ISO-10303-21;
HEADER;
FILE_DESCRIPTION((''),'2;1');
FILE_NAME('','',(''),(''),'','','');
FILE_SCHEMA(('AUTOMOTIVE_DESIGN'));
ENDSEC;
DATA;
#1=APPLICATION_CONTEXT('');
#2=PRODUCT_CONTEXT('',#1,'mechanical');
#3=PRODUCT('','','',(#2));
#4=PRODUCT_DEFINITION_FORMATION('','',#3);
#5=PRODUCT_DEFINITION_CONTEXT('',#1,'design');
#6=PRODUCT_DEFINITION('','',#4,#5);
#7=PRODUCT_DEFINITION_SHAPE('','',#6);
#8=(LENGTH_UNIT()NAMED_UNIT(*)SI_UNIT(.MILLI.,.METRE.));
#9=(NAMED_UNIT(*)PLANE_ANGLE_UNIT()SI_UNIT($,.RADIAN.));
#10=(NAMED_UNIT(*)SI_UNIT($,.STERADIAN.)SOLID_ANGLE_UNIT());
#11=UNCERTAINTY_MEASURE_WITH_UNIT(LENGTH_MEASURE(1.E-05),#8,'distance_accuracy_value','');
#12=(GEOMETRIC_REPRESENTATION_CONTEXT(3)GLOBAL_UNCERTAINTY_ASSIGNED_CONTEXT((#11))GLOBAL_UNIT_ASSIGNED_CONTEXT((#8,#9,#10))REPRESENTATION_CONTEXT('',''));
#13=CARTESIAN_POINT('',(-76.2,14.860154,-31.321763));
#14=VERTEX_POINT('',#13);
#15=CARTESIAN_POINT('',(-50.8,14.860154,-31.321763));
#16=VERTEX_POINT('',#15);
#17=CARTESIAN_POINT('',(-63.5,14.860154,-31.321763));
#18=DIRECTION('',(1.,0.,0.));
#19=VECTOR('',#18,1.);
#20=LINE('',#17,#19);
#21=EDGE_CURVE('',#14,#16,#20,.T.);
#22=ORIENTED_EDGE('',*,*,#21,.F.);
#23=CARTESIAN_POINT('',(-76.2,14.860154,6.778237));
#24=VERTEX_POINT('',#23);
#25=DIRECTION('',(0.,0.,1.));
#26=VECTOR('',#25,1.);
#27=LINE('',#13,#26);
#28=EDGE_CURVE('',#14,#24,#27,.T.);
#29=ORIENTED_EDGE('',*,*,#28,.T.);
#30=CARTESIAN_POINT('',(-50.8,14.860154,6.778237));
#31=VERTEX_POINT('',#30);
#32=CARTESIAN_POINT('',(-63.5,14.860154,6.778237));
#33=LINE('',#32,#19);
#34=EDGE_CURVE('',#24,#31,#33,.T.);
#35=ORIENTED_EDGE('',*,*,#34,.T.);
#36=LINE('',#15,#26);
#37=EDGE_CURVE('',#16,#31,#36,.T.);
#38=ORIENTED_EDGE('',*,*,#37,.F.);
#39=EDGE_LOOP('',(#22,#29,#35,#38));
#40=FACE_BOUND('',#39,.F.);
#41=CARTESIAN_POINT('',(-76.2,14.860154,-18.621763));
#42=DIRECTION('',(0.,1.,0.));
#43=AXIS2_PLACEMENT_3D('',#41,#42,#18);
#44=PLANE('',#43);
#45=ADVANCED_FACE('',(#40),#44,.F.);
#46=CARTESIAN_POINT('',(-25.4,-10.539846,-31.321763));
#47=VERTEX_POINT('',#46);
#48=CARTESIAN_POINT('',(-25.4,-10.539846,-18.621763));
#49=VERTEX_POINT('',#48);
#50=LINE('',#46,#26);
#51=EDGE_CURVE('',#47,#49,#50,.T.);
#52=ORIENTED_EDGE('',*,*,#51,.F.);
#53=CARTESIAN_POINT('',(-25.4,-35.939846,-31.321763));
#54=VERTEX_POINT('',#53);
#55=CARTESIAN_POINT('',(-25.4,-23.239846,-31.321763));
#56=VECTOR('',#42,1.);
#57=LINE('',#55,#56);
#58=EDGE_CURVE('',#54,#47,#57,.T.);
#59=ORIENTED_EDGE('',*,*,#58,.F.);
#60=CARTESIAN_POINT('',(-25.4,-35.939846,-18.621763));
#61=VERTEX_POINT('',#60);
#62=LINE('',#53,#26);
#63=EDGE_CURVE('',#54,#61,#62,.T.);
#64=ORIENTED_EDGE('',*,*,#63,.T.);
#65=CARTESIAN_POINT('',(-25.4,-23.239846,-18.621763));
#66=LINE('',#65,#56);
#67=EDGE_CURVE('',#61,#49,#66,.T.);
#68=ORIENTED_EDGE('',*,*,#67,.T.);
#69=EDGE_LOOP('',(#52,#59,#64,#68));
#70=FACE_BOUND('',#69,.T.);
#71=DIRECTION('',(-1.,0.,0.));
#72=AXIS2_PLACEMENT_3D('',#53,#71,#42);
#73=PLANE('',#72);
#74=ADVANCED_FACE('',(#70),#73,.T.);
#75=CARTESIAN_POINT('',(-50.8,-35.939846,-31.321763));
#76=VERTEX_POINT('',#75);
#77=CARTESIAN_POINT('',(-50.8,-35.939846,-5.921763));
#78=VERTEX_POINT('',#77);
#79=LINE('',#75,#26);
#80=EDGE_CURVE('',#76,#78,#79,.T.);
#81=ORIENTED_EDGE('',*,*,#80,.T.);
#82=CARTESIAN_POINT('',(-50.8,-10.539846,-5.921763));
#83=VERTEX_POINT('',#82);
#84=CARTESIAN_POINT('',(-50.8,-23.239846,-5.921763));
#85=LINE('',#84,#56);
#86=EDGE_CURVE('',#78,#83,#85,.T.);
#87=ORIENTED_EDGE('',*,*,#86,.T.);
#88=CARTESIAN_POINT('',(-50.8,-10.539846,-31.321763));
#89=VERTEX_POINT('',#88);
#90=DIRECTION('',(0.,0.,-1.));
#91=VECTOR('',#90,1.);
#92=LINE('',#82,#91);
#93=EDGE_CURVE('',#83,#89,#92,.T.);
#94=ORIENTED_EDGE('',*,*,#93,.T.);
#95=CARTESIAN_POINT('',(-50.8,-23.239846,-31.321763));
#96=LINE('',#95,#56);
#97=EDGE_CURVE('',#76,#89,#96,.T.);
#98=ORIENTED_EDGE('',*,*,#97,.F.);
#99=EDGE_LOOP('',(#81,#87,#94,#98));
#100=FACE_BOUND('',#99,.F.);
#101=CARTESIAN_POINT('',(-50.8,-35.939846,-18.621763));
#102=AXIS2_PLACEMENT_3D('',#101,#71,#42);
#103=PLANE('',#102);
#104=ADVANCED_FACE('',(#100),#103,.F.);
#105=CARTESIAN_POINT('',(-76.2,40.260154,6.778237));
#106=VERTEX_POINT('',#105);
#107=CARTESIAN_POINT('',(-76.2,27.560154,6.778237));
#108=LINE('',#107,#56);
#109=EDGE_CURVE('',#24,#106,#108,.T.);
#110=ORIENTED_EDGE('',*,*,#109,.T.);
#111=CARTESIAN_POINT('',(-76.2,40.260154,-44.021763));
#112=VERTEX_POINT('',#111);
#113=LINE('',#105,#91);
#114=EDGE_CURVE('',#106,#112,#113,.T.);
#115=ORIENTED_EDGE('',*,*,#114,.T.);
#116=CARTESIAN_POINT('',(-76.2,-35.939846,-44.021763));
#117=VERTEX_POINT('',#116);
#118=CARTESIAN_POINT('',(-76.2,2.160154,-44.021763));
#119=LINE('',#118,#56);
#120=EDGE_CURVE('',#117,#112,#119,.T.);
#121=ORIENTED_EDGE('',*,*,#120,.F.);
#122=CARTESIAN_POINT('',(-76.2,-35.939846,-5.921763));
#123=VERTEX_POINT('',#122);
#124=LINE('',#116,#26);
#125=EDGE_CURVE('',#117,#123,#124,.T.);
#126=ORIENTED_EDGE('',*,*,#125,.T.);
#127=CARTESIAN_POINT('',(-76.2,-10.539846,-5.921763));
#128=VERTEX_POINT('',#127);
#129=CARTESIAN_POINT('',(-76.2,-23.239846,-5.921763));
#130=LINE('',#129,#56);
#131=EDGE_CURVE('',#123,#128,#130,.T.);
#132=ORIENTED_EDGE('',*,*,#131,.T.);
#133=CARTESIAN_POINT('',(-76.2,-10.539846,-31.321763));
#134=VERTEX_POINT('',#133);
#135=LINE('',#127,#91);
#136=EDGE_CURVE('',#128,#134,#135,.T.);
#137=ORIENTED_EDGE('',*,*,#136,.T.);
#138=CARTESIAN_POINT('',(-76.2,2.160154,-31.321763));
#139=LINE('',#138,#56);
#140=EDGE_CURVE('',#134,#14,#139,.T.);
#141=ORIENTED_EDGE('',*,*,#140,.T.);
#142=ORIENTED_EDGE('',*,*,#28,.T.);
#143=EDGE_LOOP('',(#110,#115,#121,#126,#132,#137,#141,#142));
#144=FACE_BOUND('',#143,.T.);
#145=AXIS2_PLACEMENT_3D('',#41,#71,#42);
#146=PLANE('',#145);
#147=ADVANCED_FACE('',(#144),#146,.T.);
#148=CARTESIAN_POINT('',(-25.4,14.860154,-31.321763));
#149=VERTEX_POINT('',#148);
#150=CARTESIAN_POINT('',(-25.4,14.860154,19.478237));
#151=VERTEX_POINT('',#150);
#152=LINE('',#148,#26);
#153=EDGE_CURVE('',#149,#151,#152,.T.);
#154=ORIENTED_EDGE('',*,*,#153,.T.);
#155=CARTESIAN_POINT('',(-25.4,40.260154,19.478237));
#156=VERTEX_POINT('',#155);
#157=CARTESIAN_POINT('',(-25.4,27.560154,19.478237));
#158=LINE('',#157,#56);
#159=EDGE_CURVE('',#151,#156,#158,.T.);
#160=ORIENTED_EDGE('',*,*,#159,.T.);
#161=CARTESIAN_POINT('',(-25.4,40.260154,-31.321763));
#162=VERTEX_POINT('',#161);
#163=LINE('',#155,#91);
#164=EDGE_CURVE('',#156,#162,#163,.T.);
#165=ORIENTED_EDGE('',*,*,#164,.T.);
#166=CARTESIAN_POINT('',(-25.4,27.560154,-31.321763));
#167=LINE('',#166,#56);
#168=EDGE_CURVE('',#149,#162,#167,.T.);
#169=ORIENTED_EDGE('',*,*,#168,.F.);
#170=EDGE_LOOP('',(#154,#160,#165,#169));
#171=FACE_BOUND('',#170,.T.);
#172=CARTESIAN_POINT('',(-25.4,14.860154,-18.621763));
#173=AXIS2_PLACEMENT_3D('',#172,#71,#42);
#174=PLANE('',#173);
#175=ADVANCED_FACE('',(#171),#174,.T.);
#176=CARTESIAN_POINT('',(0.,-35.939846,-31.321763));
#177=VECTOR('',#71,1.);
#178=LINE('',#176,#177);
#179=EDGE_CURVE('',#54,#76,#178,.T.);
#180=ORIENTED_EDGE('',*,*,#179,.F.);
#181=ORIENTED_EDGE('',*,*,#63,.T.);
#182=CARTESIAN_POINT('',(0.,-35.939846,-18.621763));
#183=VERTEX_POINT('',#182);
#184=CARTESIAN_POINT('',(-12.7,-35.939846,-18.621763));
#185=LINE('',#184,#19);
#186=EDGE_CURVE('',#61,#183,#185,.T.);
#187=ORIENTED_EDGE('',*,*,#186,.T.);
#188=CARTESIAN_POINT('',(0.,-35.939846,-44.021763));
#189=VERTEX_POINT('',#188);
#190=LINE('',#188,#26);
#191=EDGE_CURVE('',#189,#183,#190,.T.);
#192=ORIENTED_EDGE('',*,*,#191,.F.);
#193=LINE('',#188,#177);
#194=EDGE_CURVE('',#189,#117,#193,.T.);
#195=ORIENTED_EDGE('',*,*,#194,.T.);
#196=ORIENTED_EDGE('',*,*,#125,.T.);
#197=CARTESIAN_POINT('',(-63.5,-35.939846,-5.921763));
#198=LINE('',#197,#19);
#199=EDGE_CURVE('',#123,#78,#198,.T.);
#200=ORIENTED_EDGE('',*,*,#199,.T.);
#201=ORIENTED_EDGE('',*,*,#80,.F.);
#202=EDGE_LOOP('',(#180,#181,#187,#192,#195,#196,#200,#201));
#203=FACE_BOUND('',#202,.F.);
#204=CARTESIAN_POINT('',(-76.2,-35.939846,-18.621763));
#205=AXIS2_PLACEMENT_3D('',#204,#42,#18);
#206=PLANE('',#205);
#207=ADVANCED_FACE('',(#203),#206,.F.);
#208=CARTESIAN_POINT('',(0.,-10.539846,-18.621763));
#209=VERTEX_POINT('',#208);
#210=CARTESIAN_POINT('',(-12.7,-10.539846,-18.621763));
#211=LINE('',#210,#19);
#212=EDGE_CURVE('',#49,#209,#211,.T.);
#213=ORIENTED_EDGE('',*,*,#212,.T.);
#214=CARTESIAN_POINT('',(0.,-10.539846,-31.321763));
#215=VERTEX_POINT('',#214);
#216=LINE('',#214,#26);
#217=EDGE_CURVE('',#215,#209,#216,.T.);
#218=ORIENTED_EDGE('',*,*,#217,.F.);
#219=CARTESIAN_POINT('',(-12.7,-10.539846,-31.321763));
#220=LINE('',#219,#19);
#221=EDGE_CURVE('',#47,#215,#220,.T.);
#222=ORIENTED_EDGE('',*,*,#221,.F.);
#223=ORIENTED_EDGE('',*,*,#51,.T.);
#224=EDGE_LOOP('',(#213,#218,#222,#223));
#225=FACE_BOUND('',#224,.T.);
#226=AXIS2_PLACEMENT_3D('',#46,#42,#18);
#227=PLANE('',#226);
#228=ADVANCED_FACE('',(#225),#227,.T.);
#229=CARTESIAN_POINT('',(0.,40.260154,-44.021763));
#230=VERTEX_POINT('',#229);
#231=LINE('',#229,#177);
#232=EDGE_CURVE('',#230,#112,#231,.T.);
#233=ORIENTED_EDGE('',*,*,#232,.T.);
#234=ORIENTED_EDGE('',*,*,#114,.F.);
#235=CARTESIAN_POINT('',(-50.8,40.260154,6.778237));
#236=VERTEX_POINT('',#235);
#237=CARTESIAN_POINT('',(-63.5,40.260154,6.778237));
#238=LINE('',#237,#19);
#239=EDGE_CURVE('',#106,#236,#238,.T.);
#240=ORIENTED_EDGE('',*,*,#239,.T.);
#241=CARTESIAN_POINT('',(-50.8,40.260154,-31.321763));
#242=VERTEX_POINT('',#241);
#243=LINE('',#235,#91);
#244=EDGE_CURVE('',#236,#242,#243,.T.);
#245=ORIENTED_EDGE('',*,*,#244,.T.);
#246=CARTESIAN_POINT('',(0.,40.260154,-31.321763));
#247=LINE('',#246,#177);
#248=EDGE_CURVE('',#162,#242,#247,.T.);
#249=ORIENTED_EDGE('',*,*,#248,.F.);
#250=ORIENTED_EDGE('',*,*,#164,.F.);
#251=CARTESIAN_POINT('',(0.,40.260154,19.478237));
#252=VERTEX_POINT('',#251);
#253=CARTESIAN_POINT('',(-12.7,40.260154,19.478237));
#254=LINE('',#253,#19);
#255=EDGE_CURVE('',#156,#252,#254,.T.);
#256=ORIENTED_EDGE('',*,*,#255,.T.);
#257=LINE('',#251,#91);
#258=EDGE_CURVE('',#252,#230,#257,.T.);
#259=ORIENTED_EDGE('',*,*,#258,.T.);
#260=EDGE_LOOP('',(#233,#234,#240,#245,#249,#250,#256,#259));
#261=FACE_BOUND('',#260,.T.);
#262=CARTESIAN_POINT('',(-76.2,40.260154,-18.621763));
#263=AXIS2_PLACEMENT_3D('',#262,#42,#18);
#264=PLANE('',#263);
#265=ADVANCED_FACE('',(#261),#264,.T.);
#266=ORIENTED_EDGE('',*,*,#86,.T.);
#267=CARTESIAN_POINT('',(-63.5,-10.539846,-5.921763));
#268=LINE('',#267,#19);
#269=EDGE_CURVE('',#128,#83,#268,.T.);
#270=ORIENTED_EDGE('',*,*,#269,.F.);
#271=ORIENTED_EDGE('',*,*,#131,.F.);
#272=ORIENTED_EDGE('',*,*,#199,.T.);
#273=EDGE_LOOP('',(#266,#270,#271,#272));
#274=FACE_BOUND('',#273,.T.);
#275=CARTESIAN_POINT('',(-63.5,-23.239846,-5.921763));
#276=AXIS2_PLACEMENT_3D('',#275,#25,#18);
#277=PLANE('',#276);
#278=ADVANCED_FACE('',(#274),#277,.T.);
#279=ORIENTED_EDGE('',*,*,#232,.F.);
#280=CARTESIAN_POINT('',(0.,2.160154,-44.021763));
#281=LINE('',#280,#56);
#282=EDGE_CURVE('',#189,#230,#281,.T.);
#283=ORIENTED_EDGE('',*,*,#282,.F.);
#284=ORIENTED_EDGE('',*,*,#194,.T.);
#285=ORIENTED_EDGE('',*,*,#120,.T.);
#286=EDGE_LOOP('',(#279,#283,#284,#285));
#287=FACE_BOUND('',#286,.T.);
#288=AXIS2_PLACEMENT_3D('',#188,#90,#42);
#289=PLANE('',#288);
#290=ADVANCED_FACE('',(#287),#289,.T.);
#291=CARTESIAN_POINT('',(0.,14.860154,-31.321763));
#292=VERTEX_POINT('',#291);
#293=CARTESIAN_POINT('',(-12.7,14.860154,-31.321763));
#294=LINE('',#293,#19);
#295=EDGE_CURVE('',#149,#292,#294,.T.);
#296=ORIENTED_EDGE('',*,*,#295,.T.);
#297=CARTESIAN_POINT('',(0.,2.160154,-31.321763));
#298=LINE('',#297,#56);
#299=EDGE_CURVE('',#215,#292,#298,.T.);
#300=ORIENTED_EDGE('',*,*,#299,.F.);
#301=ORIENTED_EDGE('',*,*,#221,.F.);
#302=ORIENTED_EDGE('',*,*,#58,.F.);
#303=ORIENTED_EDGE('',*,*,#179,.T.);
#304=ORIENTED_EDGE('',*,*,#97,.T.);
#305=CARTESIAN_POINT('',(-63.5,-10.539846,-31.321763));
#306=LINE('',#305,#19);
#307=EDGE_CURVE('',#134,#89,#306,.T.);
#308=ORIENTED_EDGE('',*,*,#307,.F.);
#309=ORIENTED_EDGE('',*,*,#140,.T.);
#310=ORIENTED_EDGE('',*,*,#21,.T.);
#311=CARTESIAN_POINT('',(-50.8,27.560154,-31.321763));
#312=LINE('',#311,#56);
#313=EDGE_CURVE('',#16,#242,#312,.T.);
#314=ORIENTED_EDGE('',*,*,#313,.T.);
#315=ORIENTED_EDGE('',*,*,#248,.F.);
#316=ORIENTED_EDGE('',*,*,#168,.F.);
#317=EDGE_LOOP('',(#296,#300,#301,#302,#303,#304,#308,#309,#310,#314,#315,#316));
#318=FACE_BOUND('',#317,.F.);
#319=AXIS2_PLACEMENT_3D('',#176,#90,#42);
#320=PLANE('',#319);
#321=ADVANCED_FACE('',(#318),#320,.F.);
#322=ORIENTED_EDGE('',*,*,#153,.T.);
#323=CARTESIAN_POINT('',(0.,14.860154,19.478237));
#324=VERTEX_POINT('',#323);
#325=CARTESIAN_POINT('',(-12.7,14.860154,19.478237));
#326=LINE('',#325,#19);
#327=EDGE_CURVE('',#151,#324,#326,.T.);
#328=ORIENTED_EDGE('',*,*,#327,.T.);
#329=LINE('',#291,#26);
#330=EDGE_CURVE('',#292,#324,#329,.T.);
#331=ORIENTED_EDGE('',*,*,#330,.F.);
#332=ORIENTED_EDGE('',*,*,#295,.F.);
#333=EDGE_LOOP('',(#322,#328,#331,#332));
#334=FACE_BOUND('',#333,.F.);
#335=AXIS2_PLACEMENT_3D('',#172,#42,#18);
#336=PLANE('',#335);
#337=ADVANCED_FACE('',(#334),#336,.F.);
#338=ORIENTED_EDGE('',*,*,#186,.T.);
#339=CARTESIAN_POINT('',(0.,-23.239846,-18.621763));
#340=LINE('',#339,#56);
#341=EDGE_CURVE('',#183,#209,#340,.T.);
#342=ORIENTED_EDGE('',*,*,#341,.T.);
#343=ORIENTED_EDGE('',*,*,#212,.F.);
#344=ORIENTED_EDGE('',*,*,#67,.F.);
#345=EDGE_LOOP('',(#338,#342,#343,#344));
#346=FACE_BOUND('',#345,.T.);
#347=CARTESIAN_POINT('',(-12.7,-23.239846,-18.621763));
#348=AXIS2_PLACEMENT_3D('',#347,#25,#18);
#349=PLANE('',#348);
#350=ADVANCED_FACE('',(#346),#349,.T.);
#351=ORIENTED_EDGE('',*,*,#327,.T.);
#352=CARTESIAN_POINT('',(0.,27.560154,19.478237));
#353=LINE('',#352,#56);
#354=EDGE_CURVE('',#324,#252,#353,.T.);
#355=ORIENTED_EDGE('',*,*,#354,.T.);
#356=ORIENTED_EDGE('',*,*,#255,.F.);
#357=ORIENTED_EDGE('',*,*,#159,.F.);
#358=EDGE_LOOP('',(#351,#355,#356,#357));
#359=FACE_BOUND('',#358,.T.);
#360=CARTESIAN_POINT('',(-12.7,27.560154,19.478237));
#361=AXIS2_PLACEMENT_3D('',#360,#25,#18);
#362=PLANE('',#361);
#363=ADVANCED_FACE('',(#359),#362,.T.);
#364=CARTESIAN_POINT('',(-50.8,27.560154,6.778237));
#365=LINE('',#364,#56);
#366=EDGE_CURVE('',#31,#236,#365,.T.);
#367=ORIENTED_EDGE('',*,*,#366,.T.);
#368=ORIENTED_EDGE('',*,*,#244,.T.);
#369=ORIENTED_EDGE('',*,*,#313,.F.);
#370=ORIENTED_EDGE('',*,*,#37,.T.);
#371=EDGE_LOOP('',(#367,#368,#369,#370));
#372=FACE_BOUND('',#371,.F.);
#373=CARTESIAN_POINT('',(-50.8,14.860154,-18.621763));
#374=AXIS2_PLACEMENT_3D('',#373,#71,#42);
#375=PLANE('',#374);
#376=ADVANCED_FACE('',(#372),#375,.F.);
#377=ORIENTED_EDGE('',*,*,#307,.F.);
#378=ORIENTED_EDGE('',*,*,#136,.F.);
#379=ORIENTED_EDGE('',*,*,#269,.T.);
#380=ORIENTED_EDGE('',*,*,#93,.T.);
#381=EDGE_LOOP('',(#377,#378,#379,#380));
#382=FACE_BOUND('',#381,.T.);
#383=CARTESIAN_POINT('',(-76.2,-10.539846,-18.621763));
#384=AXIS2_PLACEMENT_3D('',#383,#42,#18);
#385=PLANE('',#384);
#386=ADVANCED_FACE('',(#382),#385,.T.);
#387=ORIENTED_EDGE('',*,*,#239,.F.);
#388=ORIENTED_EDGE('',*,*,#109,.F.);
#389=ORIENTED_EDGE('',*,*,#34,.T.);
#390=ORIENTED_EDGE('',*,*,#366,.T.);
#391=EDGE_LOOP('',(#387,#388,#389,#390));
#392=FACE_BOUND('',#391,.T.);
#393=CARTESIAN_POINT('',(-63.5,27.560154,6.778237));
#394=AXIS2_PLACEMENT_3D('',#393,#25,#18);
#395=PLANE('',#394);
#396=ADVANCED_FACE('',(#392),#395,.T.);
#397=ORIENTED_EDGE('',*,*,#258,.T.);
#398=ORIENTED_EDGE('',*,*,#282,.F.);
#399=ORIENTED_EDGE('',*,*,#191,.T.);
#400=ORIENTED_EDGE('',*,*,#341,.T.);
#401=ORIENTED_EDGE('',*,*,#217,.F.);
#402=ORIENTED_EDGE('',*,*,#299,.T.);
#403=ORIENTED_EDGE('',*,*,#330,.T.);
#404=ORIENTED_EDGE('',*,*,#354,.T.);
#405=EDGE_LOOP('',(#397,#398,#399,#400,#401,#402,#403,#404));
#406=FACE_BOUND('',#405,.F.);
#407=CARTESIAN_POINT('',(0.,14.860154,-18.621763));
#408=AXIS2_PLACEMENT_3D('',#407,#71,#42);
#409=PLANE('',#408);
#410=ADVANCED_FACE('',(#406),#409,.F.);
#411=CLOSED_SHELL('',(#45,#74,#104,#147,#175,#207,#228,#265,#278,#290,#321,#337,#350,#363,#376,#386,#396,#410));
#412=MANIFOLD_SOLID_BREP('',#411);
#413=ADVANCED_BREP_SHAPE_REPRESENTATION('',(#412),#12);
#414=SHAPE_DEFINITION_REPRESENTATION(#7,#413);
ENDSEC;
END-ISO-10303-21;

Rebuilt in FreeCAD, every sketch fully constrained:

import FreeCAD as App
import Part
import Sketcher
Q = App.Units.Quantity


def add_polygon(sketch, points):
    """Adds a closed chain of lines whose ends are joined by coincident constraints."""
    first, n = sketch.GeometryCount, len(points)
    for a, b in zip(points, points[1:] + points[:1]):
        sketch.addGeometry(Part.LineSegment(App.Vector(*a, 0), App.Vector(*b, 0)), False)
    for i in range(n):
        sketch.addConstraint(Sketcher.Constraint("Coincident", first + i, 2, first + (i + 1) % n, 1))

doc = App.newDocument("Part")
body = doc.addObject("PartDesign::Body", "Body")

# Sketch on YZ plane
sketch1 = doc.addObject("Sketcher::SketchObject", "Sketch")
body.addObject(sketch1)
sketch1.AttachmentSupport = (doc.YZ_Plane, [""])
sketch1.MapMode = "FlatFace"
add_polygon(sketch1, [(-36, -31), (-36, -44), (40, -44), (40, -31)])  # lines 0-3
sketch1.addConstraint(Sketcher.Constraint("Vertical", 0))
sketch1.addConstraint(Sketcher.Constraint("Horizontal", 1))
sketch1.addConstraint(Sketcher.Constraint("Vertical", 2))
sketch1.addConstraint(Sketcher.Constraint("Horizontal", 3))
sketch1.addConstraint(Sketcher.Constraint("DistanceX", 1, 1, 1, 2, Q("3 in")))
sketch1.addConstraint(Sketcher.Constraint("DistanceY", 0, 2, 0, 1, Q("0.5 in")))
sketch1.addConstraint(Sketcher.Constraint("DistanceX", 0, 2, -1, 1, 35.939846))
sketch1.addConstraint(Sketcher.Constraint("DistanceY", 0, 2, -1, 1, 44.021763))
pad1 = doc.addObject("PartDesign::Pad", "Pad")
body.addObject(pad1)
pad1.Profile = sketch1
pad1.Length = Q("3 in")
pad1.Reversed = True

# Sketch on XY plane
sketch2 = doc.addObject("Sketcher::SketchObject", "Sketch001")
body.addObject(sketch2)
sketch2.AttachmentSupport = (doc.XY_Plane, [""])
sketch2.MapMode = "FlatFace"
sketch2.AttachmentOffset = App.Placement(App.Vector(0, 0, -31.321763), App.Rotation())
add_polygon(sketch2, [(-25, -11), (-25, -36), (0, -36), (0, -11)])  # lines 0-3
add_polygon(sketch2, [(-76, -11), (-76, -36), (-51, -36), (-51, -11)])  # lines 4-7
add_polygon(sketch2, [(-25, 40), (-25, 15), (0, 15), (0, 40)])  # lines 8-11
add_polygon(sketch2, [(-76, 40), (-76, 15), (-51, 15), (-51, 40)])  # lines 12-15
sketch2.addConstraint(Sketcher.Constraint("Vertical", 0))
sketch2.addConstraint(Sketcher.Constraint("Horizontal", 1))
sketch2.addConstraint(Sketcher.Constraint("Vertical", 2))
sketch2.addConstraint(Sketcher.Constraint("Horizontal", 3))
sketch2.addConstraint(Sketcher.Constraint("Vertical", 4))
sketch2.addConstraint(Sketcher.Constraint("Horizontal", 5))
sketch2.addConstraint(Sketcher.Constraint("Vertical", 6))
sketch2.addConstraint(Sketcher.Constraint("Horizontal", 7))
sketch2.addConstraint(Sketcher.Constraint("Vertical", 8))
sketch2.addConstraint(Sketcher.Constraint("Horizontal", 9))
sketch2.addConstraint(Sketcher.Constraint("Vertical", 10))
sketch2.addConstraint(Sketcher.Constraint("Horizontal", 11))
sketch2.addConstraint(Sketcher.Constraint("Vertical", 12))
sketch2.addConstraint(Sketcher.Constraint("Horizontal", 13))
sketch2.addConstraint(Sketcher.Constraint("Vertical", 14))
sketch2.addConstraint(Sketcher.Constraint("Horizontal", 15))
sketch2.addConstraint(Sketcher.Constraint("PointOnObject", 1, 2, -2))
sketch2.addConstraint(Sketcher.Constraint("PointOnObject", 9, 2, -2))
sketch2.addConstraint(Sketcher.Constraint("Horizontal", 1, 2, 4, 2))
sketch2.addConstraint(Sketcher.Constraint("Horizontal", 3, 2, 6, 2))
sketch2.addConstraint(Sketcher.Constraint("Horizontal", 9, 2, 12, 2))
sketch2.addConstraint(Sketcher.Constraint("Horizontal", 11, 2, 14, 2))
sketch2.addConstraint(Sketcher.Constraint("Vertical", 3, 2, 8, 2))
sketch2.addConstraint(Sketcher.Constraint("Vertical", 7, 2, 12, 2))
sketch2.addConstraint(Sketcher.Constraint("Vertical", 6, 2, 13, 2))
sketch2.addConstraint(Sketcher.Constraint("Equal", 3, 5))
sketch2.addConstraint(Sketcher.Constraint("Equal", 15, 0))
sketch2.addConstraint(Sketcher.Constraint("Equal", 6, 8))
sketch2.addConstraint(Sketcher.Constraint("DistanceX", 1, 1, 1, 2, Q("1 in")))
sketch2.addConstraint(Sketcher.Constraint("DistanceX", 4, 2, -1, 1, Q("3 in")))
sketch2.addConstraint(Sketcher.Constraint("DistanceY", 3, 2, 8, 2, Q("1 in")))
sketch2.addConstraint(Sketcher.Constraint("DistanceY", 0, 2, -1, 1, 35.939846))
pad2 = doc.addObject("PartDesign::Pad", "Pad001")
body.addObject(pad2)
pad2.Profile = sketch2
pad2.Length = Q("0.5 in")

# Sketch on XY plane
sketch3 = doc.addObject("Sketcher::SketchObject", "Sketch002")
body.addObject(sketch3)
sketch3.AttachmentSupport = (doc.XY_Plane, [""])
sketch3.MapMode = "FlatFace"
sketch3.AttachmentOffset = App.Placement(App.Vector(0, 0, -18.621763), App.Rotation())
add_polygon(sketch3, [(-76, -11), (-76, -36), (-51, -36), (-51, -11)])  # lines 0-3
sketch3.addConstraint(Sketcher.Constraint("Vertical", 0))
sketch3.addConstraint(Sketcher.Constraint("Horizontal", 1))
sketch3.addConstraint(Sketcher.Constraint("Vertical", 2))
sketch3.addConstraint(Sketcher.Constraint("Horizontal", 3))
sketch3.addConstraint(Sketcher.Constraint("Equal", 3, 0))
sketch3.addConstraint(Sketcher.Constraint("DistanceX", 1, 1, 1, 2, Q("1 in")))
sketch3.addConstraint(Sketcher.Constraint("DistanceX", 0, 2, -1, 1, Q("3 in")))
sketch3.addConstraint(Sketcher.Constraint("DistanceY", 0, 2, -1, 1, 35.939846))
pad3 = doc.addObject("PartDesign::Pad", "Pad002")
body.addObject(pad3)
pad3.Profile = sketch3
pad3.Length = Q("0.5 in")

# Sketch on XY plane
sketch4 = doc.addObject("Sketcher::SketchObject", "Sketch003")
body.addObject(sketch4)
sketch4.AttachmentSupport = (doc.XY_Plane, [""])
sketch4.MapMode = "FlatFace"
sketch4.AttachmentOffset = App.Placement(App.Vector(0, 0, -18.621763), App.Rotation())
add_polygon(sketch4, [(-25, 40), (-25, 15), (0, 15), (0, 40)])  # lines 0-3
sketch4.addConstraint(Sketcher.Constraint("Vertical", 0))
sketch4.addConstraint(Sketcher.Constraint("Horizontal", 1))
sketch4.addConstraint(Sketcher.Constraint("Vertical", 2))
sketch4.addConstraint(Sketcher.Constraint("Horizontal", 3))
sketch4.addConstraint(Sketcher.Constraint("PointOnObject", 1, 2, -2))
sketch4.addConstraint(Sketcher.Constraint("Equal", 3, 0))
sketch4.addConstraint(Sketcher.Constraint("DistanceX", 1, 1, 1, 2, Q("1 in")))
sketch4.addConstraint(Sketcher.Constraint("DistanceY", -1, 1, 0, 2, 14.860154))
pad4 = doc.addObject("PartDesign::Pad", "Pad003")
body.addObject(pad4)
pad4.Profile = sketch4
pad4.Length = Q("1.5 in")

# Sketch on XY plane
sketch5 = doc.addObject("Sketcher::SketchObject", "Sketch004")
body.addObject(sketch5)
sketch5.AttachmentSupport = (doc.XY_Plane, [""])
sketch5.MapMode = "FlatFace"
sketch5.AttachmentOffset = App.Placement(App.Vector(0, 0, -18.621763), App.Rotation())
add_polygon(sketch5, [(-76, 40), (-76, 15), (-51, 15), (-51, 40)])  # lines 0-3
sketch5.addConstraint(Sketcher.Constraint("Vertical", 0))
sketch5.addConstraint(Sketcher.Constraint("Horizontal", 1))
sketch5.addConstraint(Sketcher.Constraint("Vertical", 2))
sketch5.addConstraint(Sketcher.Constraint("Horizontal", 3))
sketch5.addConstraint(Sketcher.Constraint("Equal", 3, 0))
sketch5.addConstraint(Sketcher.Constraint("DistanceX", 1, 1, 1, 2, Q("1 in")))
sketch5.addConstraint(Sketcher.Constraint("DistanceX", 0, 2, -1, 1, Q("3 in")))
sketch5.addConstraint(Sketcher.Constraint("DistanceY", -1, 1, 0, 2, 14.860154))
pad5 = doc.addObject("PartDesign::Pad", "Pad004")
body.addObject(pad5)
pad5.Profile = sketch5
pad5.Length = Q("1 in")

doc.recompute()
